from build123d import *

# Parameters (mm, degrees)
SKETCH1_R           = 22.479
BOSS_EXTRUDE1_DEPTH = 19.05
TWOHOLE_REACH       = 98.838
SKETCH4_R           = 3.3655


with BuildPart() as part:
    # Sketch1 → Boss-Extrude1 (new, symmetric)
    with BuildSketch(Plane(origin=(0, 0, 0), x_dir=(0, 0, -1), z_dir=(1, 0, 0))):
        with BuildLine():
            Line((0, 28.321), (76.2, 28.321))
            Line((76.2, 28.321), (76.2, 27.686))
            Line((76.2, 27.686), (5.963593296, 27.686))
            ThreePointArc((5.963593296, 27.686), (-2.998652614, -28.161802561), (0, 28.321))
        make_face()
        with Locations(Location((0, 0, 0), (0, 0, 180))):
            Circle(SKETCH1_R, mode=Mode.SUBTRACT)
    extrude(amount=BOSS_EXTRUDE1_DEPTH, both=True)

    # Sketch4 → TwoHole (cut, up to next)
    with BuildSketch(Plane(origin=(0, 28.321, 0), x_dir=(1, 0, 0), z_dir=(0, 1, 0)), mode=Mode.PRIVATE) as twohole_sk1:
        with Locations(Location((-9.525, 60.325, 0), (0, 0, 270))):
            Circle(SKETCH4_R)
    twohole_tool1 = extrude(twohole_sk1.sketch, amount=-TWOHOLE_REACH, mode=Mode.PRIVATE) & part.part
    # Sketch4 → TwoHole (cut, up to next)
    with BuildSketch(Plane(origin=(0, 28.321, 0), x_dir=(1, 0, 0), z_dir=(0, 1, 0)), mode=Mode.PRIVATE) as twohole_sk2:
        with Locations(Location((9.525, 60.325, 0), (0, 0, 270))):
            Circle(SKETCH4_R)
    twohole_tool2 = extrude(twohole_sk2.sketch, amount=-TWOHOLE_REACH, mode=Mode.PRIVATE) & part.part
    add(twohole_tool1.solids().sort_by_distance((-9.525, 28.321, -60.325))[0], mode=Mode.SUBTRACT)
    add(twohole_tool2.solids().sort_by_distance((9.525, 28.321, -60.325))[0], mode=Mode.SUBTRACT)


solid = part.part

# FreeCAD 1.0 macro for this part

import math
import FreeCAD as App
import Part
import Sketcher
from FreeCAD import Vector
Q = App.Units.Quantity

doc = App.newDocument("Part")
body = doc.addObject("PartDesign::Body", "Body")

sketch1 = doc.addObject("Sketcher::SketchObject", "Sketch")
body.addObject(sketch1)
sketch1.AttachmentSupport = (doc.YZ_Plane, [""])
sketch1.MapMode = "FlatFace"
sketch1.addGeometry([
    Part.LineSegment(Vector(28.3, -76.2, 0), Vector(28.3, 0, 0)),
    Part.ArcOfCircle(Part.Circle(Vector(0, 0, 0), Vector(0, 0, 1), 28.3), math.radians(0), math.radians(348)),
    Part.LineSegment(Vector(27.7, -6, 0), Vector(27.7, -76.2, 0)),
    Part.LineSegment(Vector(27.7, -76.2, 0), Vector(28.3, -76.2, 0)),
    Part.Circle(Vector(0, 0, 0), Vector(0, 0, 1), 22.5),
], False)
sketch1.addConstraint([
    Sketcher.Constraint("Tangent", 0, 2, 1, 1),
    Sketcher.Constraint("Coincident", 1, 2, 2, 1),
    Sketcher.Constraint("Coincident", 2, 2, 3, 1),
    Sketcher.Constraint("Coincident", 3, 2, 0, 1),
    Sketcher.Constraint("Vertical", 0),
    Sketcher.Constraint("Vertical", 2),
    Sketcher.Constraint("Horizontal", 3),
    Sketcher.Constraint("Coincident", 1, 3, -1, 1),
    Sketcher.Constraint("Coincident", 4, 3, -1, 1),
    Sketcher.Constraint("Diameter", 4, Q("1.77 in")),
    Sketcher.Constraint("DistanceY", 0, 1, 0, 2, Q("3 in")),
    Sketcher.Constraint("Radius", 1, Q("1.115 in")),
    Sketcher.Constraint("DistanceX", 3, 1, 3, 2, Q("0.025 in")),
])
pad1 = doc.addObject("PartDesign::Pad", "Pad")
body.addObject(pad1)
pad1.Profile = sketch1
pad1.Length = Q("1.5 in")
pad1.Midplane = True

sketch2 = doc.addObject("Sketcher::SketchObject", "Sketch001")
body.addObject(sketch2)
sketch2.AttachmentSupport = (doc.XZ_Plane, [""])
sketch2.MapMode = "FlatFace"
sketch2.AttachmentOffset = App.Placement(Vector(0, 0, -1.115 * 25.4), App.Rotation())
sketch2.addGeometry(Part.Circle(Vector(-9.5, -60.3, 0), Vector(0, 0, 1), 3.4), False)
sketch2.addConstraint([
    Sketcher.Constraint("Diameter", 0, Q("0.265 in")),
    Sketcher.Constraint("DistanceX", 0, 3, -1, 1, Q("0.375 in")),
    Sketcher.Constraint("DistanceY", 0, 3, -1, 1, Q("2.375 in")),
])
pocket1 = doc.addObject("PartDesign::Pocket", "Pocket")
body.addObject(pocket1)
pocket1.Profile = sketch2
pocket1.Type = "UpToFirst"
pocket1.Reversed = True

sketch3 = doc.addObject("Sketcher::SketchObject", "Sketch002")
body.addObject(sketch3)
sketch3.AttachmentSupport = (doc.XZ_Plane, [""])
sketch3.MapMode = "FlatFace"
sketch3.AttachmentOffset = App.Placement(Vector(0, 0, -1.115 * 25.4), App.Rotation())
sketch3.addGeometry(Part.Circle(Vector(9.5, -60.3, 0), Vector(0, 0, 1), 3.4), False)
sketch3.addConstraint([
    Sketcher.Constraint("Diameter", 0, Q("0.265 in")),
    Sketcher.Constraint("DistanceX", -1, 1, 0, 3, Q("0.375 in")),
    Sketcher.Constraint("DistanceY", 0, 3, -1, 1, Q("2.375 in")),
])
pocket2 = doc.addObject("PartDesign::Pocket", "Pocket001")
body.addObject(pocket2)
pocket2.Profile = sketch3
pocket2.Type = "UpToFirst"
pocket2.Reversed = True

doc.recompute()
